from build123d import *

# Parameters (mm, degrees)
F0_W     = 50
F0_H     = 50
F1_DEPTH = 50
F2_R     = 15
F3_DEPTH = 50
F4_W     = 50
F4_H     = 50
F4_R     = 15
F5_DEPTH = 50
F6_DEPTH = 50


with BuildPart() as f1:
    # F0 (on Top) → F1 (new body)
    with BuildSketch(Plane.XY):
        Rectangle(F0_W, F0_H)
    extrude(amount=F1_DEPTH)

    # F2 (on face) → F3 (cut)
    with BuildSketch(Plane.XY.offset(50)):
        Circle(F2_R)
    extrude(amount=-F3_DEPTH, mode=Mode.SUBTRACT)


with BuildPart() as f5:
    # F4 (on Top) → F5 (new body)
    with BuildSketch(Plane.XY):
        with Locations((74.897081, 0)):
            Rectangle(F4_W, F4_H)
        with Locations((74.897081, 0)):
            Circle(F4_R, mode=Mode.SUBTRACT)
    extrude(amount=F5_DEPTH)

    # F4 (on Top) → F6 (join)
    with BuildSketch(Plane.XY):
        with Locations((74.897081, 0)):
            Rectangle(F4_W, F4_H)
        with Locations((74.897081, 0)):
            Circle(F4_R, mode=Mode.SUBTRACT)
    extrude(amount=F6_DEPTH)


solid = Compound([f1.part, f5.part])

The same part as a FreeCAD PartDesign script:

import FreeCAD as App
import Part
import Sketcher
from FreeCAD import Vector

doc = App.newDocument("Part")
params = doc.addObject("Spreadsheet::Sheet", "Params")
for row, (alias, value) in enumerate([
    ("sketch1_width", "50 mm"),
    ("pad1_length", "50 mm"),
    ("sketch2_diameter", "30 mm"),
    ("pocket1_length", "50 mm"),
    ("sketch3_diameter", "30 mm"),
    ("sketch3_width", "50 mm"),
    ("pad2_length", "50 mm"),
    ("sketch4_diameter", "30 mm"),
    ("sketch4_width", "50 mm"),
    ("pad3_length", "50 mm"),
], start=1):
    params.set(f"A{row}", alias)
    params.set(f"B{row}", "=" + value)
    params.setAlias(f"B{row}", alias)

body = doc.addObject("PartDesign::Body", "Body")

# Sketch on XY plane
sketch1 = body.newObject("Sketcher::SketchObject", "Sketch")
sketch1.AttachmentSupport = (doc.getObject("XY_Plane"), [""])
sketch1.MapMode = "FlatFace"
sketch1.addGeometry([
    Part.LineSegment(Vector(-25, 25, 0), Vector(-25, -25, 0)),
    Part.LineSegment(Vector(-25, -25, 0), Vector(25, -25, 0)),
    Part.LineSegment(Vector(25, -25, 0), Vector(25, 25, 0)),
    Part.LineSegment(Vector(25, 25, 0), Vector(-25, 25, 0)),
], False)
sketch1.addConstraint([
    Sketcher.Constraint("Coincident", 0, 2, 1, 1),
    Sketcher.Constraint("Coincident", 1, 2, 2, 1),
    Sketcher.Constraint("Coincident", 2, 2, 3, 1),
    Sketcher.Constraint("Coincident", 3, 2, 0, 1),
    Sketcher.Constraint("Vertical", 0),
    Sketcher.Constraint("Horizontal", 1),
    Sketcher.Constraint("Vertical", 2),
    Sketcher.Constraint("Horizontal", 3),
    Sketcher.Constraint("Symmetric", 0, 2, 2, 2, -1, 1),
    Sketcher.Constraint("Equal", 3, 0),
    Sketcher.Constraint("DistanceX", 1, 1, 1, 2, 50.0),
])
sketch1.setExpression("Constraints[10]", "Params.sketch1_width")
pad1 = body.newObject("PartDesign::Pad", "Pad")
pad1.Profile = sketch1
pad1.setExpression("Length", "Params.pad1_length")

# Sketch on XY plane
sketch2 = body.newObject("Sketcher::SketchObject", "Sketch001")
sketch2.AttachmentSupport = (doc.getObject("XY_Plane"), [""])
sketch2.MapMode = "FlatFace"
sketch2.AttachmentOffset = App.Placement(Vector(0, 0, 50), App.Rotation())
sketch2.addGeometry(Part.Circle(Vector(0, 0, 0), Vector(0, 0, 1), 15), False)
sketch2.addConstraint([
    Sketcher.Constraint("Coincident", 0, 3, -1, 1),
    Sketcher.Constraint("Diameter", 0, 30.0),
])
sketch2.setExpression("Constraints[1]", "Params.sketch2_diameter")
pocket1 = body.newObject("PartDesign::Pocket", "Pocket")
pocket1.Profile = sketch2
pocket1.setExpression("Length", "Params.pocket1_length")
body2 = doc.addObject("PartDesign::Body", "Body001")

# Sketch on XY plane
sketch3 = body2.newObject("Sketcher::SketchObject", "Sketch002")
sketch3.AttachmentSupport = (doc.getObject("XY_Plane001"), [""])
sketch3.MapMode = "FlatFace"
sketch3.addGeometry([
    Part.LineSegment(Vector(50, 25, 0), Vector(50, -25, 0)),  # 0
    Part.LineSegment(Vector(50, -25, 0), Vector(100, -25, 0)),  # 1
    Part.LineSegment(Vector(100, -25, 0), Vector(100, 25, 0)),  # 2
    Part.LineSegment(Vector(100, 25, 0), Vector(50, 25, 0)),  # 3
    Part.Circle(Vector(75, 0, 0), Vector(0, 0, 1), 15),  # 4
], False)
sketch3.addConstraint([
    Sketcher.Constraint("Coincident", 0, 2, 1, 1),
    Sketcher.Constraint("Coincident", 1, 2, 2, 1),
    Sketcher.Constraint("Coincident", 2, 2, 3, 1),
    Sketcher.Constraint("Coincident", 3, 2, 0, 1),
    Sketcher.Constraint("Vertical", 0),
    Sketcher.Constraint("Horizontal", 1),
    Sketcher.Constraint("Vertical", 2),
    Sketcher.Constraint("Horizontal", 3),
    Sketcher.Constraint("PointOnObject", 4, 3, -1),
    Sketcher.Constraint("Equal", 3, 0),
    Sketcher.Constraint("Diameter", 4, 30.0),
    Sketcher.Constraint("DistanceX", 1, 1, 1, 2, 50.0),
    Sketcher.Constraint("DistanceY", 0, 2, -1, 1, 25.0),
    Sketcher.Constraint("DistanceX", 0, 2, 4, 3, 25.0),
    Sketcher.Constraint("DistanceX", -1, 1, 4, 3, 74.897081),
])
sketch3.setExpression("Constraints[10]", "Params.sketch3_diameter")
sketch3.setExpression("Constraints[11]", "Params.sketch3_width")
pad2 = body2.newObject("PartDesign::Pad", "Pad001")
pad2.Profile = sketch3
pad2.setExpression("Length", "Params.pad2_length")

# Sketch on XY plane
sketch4 = body2.newObject("Sketcher::SketchObject", "Sketch003")
sketch4.AttachmentSupport = (doc.getObject("XY_Plane001"), [""])
sketch4.MapMode = "FlatFace"
sketch4.addGeometry([
    Part.LineSegment(Vector(50, 25, 0), Vector(50, -25, 0)),  # 0
    Part.LineSegment(Vector(50, -25, 0), Vector(100, -25, 0)),  # 1
    Part.LineSegment(Vector(100, -25, 0), Vector(100, 25, 0)),  # 2
    Part.LineSegment(Vector(100, 25, 0), Vector(50, 25, 0)),  # 3
    Part.Circle(Vector(75, 0, 0), Vector(0, 0, 1), 15),  # 4
], False)
sketch4.addConstraint([
    Sketcher.Constraint("Coincident", 0, 2, 1, 1),
    Sketcher.Constraint("Coincident", 1, 2, 2, 1),
    Sketcher.Constraint("Coincident", 2, 2, 3, 1),
    Sketcher.Constraint("Coincident", 3, 2, 0, 1),
    Sketcher.Constraint("Vertical", 0),
    Sketcher.Constraint("Horizontal", 1),
    Sketcher.Constraint("Vertical", 2),
    Sketcher.Constraint("Horizontal", 3),
    Sketcher.Constraint("PointOnObject", 4, 3, -1),
    Sketcher.Constraint("Equal", 3, 0),
    Sketcher.Constraint("Diameter", 4, 30.0),
    Sketcher.Constraint("DistanceX", 1, 1, 1, 2, 50.0),
    Sketcher.Constraint("DistanceY", 0, 2, -1, 1, 25.0),
    Sketcher.Constraint("DistanceX", 0, 2, 4, 3, 25.0),
    Sketcher.Constraint("DistanceX", -1, 1, 4, 3, 74.897081),
])
sketch4.setExpression("Constraints[10]", "Params.sketch4_diameter")
sketch4.setExpression("Constraints[11]", "Params.sketch4_width")
pad3 = body2.newObject("PartDesign::Pad", "Pad002")
pad3.Profile = sketch4
pad3.setExpression("Length", "Params.pad3_length")

doc.recompute()
